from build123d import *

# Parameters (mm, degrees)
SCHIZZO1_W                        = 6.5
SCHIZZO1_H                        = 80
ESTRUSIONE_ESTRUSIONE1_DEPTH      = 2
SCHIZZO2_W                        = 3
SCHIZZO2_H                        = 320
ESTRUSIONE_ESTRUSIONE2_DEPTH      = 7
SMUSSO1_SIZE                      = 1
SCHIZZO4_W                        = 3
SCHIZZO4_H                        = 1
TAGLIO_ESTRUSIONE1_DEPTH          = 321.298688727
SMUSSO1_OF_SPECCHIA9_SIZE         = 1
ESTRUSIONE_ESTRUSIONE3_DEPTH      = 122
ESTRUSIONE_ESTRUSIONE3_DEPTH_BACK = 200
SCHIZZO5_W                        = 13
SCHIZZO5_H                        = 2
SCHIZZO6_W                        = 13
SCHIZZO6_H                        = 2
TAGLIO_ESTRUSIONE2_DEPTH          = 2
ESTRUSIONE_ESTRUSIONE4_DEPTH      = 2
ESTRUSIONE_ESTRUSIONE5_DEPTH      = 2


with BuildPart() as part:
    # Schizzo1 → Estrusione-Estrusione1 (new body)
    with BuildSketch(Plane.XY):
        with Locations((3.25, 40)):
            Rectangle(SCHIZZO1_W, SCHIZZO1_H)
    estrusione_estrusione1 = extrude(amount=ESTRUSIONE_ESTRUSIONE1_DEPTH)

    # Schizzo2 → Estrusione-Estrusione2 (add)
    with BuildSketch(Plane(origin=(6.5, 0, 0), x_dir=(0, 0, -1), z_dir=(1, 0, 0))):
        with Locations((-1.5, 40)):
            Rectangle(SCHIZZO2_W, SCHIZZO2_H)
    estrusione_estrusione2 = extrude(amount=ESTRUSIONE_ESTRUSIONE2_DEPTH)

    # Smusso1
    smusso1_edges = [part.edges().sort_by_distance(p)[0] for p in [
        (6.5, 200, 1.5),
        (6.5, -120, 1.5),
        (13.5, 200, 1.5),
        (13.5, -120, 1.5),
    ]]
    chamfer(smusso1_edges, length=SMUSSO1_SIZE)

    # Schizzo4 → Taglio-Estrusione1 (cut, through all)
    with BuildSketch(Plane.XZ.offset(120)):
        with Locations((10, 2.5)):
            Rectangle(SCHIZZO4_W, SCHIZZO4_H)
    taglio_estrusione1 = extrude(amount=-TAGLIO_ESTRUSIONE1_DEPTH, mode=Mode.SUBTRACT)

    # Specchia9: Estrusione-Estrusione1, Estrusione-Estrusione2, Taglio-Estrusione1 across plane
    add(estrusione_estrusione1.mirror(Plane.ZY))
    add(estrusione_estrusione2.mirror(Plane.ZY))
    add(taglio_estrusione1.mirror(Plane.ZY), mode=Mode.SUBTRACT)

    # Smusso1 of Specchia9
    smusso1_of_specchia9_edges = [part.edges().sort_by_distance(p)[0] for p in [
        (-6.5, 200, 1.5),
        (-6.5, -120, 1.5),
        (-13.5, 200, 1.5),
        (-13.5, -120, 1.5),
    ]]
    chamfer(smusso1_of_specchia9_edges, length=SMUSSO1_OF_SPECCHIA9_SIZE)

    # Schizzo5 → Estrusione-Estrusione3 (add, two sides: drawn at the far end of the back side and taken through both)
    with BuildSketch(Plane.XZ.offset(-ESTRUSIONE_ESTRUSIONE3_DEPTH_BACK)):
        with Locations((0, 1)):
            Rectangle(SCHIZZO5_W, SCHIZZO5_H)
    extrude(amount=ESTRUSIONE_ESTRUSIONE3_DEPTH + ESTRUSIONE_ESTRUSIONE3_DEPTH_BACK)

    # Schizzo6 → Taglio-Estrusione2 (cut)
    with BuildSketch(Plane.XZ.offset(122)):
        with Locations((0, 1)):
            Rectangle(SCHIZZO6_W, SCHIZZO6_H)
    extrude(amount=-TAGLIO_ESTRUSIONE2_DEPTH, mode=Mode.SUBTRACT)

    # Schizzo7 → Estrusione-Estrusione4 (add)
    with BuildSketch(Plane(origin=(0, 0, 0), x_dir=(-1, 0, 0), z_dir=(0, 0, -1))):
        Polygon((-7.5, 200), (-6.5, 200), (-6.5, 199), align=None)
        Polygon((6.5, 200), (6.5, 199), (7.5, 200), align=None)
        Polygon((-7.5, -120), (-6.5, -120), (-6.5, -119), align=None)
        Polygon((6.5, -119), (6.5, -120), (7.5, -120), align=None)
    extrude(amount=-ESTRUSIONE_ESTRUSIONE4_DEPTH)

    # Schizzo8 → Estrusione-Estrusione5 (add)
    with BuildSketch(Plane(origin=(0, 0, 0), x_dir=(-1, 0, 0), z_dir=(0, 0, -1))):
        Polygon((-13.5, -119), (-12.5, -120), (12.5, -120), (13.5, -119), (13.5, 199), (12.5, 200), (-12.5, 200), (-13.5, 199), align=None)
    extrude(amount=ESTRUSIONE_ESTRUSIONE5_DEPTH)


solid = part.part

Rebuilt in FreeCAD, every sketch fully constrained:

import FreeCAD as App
import Part
import Sketcher


def edges_at(feature, points):
    """Names of the edges that pass closest to the given points."""
    edges = feature.Shape.Edges
    near = lambda p: min(range(len(edges)), key=lambda i: edges[i].distToShape(Part.Vertex(*p))[0])
    return sorted({f"Edge{near(p) + 1}" for p in points})


def add_polygon(sketch, points):
    """Adds a closed chain of lines whose ends are joined by coincident constraints."""
    first, n = sketch.GeometryCount, len(points)
    for a, b in zip(points, points[1:] + points[:1]):
        sketch.addGeometry(Part.LineSegment(App.Vector(*a, 0), App.Vector(*b, 0)), False)
    for i in range(n):
        sketch.addConstraint(Sketcher.Constraint("Coincident", first + i, 2, first + (i + 1) % n, 1))

doc = App.newDocument("Part")
params = doc.addObject("Spreadsheet::Sheet", "Params")
for row, (alias, value) in enumerate([
    ("sketch1_height", "80 mm"),
    ("sketch1_width", "6.5 mm"),
    ("pad1_length", "2 mm"),
    ("sketch2_width", "320 mm"),
    ("sketch2_height", "3 mm"),
    ("pad2_length", "7 mm"),
    ("chamfer_size", "1 mm"),
    ("sketch3_width", "3 mm"),
    ("sketch3_height", "1 mm"),
    ("chamfer2_size", "1 mm"),
    ("sketch4_width", "13 mm"),
    ("sketch4_height", "2 mm"),
    ("pad3_length", "122 mm"),
    ("pad3_length2", "200 mm"),
    ("sketch5_width", "13 mm"),
    ("sketch5_height", "2 mm"),
    ("pocket2_length", "2 mm"),
    ("sketch6_width", "1 mm"),
    ("pad4_length", "2 mm"),
    ("sketch7_width", "25 mm"),
    ("sketch7_height", "318 mm"),
    ("pad5_length", "2 mm"),
], start=1):
    params.set(f"A{row}", alias)
    params.set(f"B{row}", "=" + value)
    params.setAlias(f"B{row}", alias)

body = doc.addObject("PartDesign::Body", "Body")

# Sketch on XY plane
sketch1 = doc.addObject("Sketcher::SketchObject", "Sketch")
body.addObject(sketch1)
sketch1.AttachmentSupport = (doc.XY_Plane, [""])
sketch1.MapMode = "FlatFace"
add_polygon(sketch1, [(0, 80), (0, 0), (6, 0), (6, 80)])  # lines 0-3
sketch1.addConstraint([
    Sketcher.Constraint("Vertical", 0),
    Sketcher.Constraint("Horizontal", 1),
    Sketcher.Constraint("Vertical", 2),
    Sketcher.Constraint("Horizontal", 3),
    Sketcher.Constraint("Coincident", 0, 2, -1, 1),
    Sketcher.Constraint("DistanceY", 0, 2, 0, 1, 80.0),
    Sketcher.Constraint("DistanceX", 1, 1, 1, 2, 6.5),
])
sketch1.setExpression("Constraints[9]", "Params.sketch1_height")
sketch1.setExpression("Constraints[10]", "Params.sketch1_width")
pad1 = doc.addObject("PartDesign::Pad", "Pad")
body.addObject(pad1)
pad1.Profile = sketch1
pad1.setExpression("Length", "Params.pad1_length")

# Sketch on YZ plane
sketch2 = doc.addObject("Sketcher::SketchObject", "Sketch001")
body.addObject(sketch2)
sketch2.AttachmentSupport = (doc.YZ_Plane, [""])
sketch2.MapMode = "FlatFace"
sketch2.AttachmentOffset = App.Placement(App.Vector(0, 0, 6.5), App.Rotation())
add_polygon(sketch2, [(200, 3), (-120, 3), (-120, 0), (200, 0)])  # lines 0-3
sketch2.addConstraint([
    Sketcher.Constraint("Horizontal", 0),
    Sketcher.Constraint("Vertical", 1),
    Sketcher.Constraint("Horizontal", 2),
    Sketcher.Constraint("Vertical", 3),
    Sketcher.Constraint("PointOnObject", 1, 2, -1),
    Sketcher.Constraint("DistanceX", 0, 2, 0, 1, 320.0),
    Sketcher.Constraint("DistanceY", 1, 2, 1, 1, 3.0),
    Sketcher.Constraint("DistanceX", 0, 2, -1, 1, 120.0),
])
sketch2.setExpression("Constraints[9]", "Params.sketch2_width")
sketch2.setExpression("Constraints[10]", "Params.sketch2_height")
pad2 = doc.addObject("PartDesign::Pad", "Pad001")
body.addObject(pad2)
pad2.Profile = sketch2
pad2.setExpression("Length", "Params.pad2_length")
doc.recompute()

chamfer = doc.addObject("PartDesign::Chamfer", "Chamfer")
body.addObject(chamfer)
chamfer.Base = (pad2, edges_at(pad2, [
    (6.5, 200, 1.5),
    (6.5, -120, 1.5),
    (13.5, 200, 1.5),
    (13.5, -120, 1.5),
]))
chamfer.setExpression("Size", "Params.chamfer_size")

# Sketch on XZ plane
sketch3 = doc.addObject("Sketcher::SketchObject", "Sketch002")
body.addObject(sketch3)
sketch3.AttachmentSupport = (doc.XZ_Plane, [""])
sketch3.MapMode = "FlatFace"
sketch3.AttachmentOffset = App.Placement(App.Vector(0, 0, 120), App.Rotation())
add_polygon(sketch3, [(8.5, 3), (8.5, 2), (11.5, 2), (11.5, 3)])  # lines 0-3
sketch3.addConstraint([
    Sketcher.Constraint("Vertical", 0),
    Sketcher.Constraint("Horizontal", 1),
    Sketcher.Constraint("Vertical", 2),
    Sketcher.Constraint("Horizontal", 3),
    Sketcher.Constraint("DistanceX", 1, 1, 1, 2, 3.0),
    Sketcher.Constraint("DistanceY", 0, 2, 0, 1, 1.0),
    Sketcher.Constraint("DistanceY", -1, 1, 0, 2, 2.0),
    Sketcher.Constraint("DistanceX", -1, 1, 0, 2, 8.5),
])
sketch3.setExpression("Constraints[8]", "Params.sketch3_width")
sketch3.setExpression("Constraints[9]", "Params.sketch3_height")
pocket1 = doc.addObject("PartDesign::Pocket", "Pocket")
body.addObject(pocket1)
pocket1.Profile = sketch3
pocket1.Type = "ThroughAll"
doc.recompute()

mirrored = doc.addObject("PartDesign::Mirrored", "Mirrored")
body.addObject(mirrored)
mirrored.Originals = [pad1, pad2, pocket1]
mirrored.MirrorPlane = (doc.YZ_Plane, [""])
body.Tip = mirrored
doc.recompute()

chamfer2 = doc.addObject("PartDesign::Chamfer", "Chamfer001")
body.addObject(chamfer2)
chamfer2.Base = (mirrored, edges_at(mirrored, [
    (-6.5, 200, 1.5),
    (-6.5, -120, 1.5),
    (-13.5, 200, 1.5),
    (-13.5, -120, 1.5),
]))
chamfer2.setExpression("Size", "Params.chamfer2_size")

# Sketch on XZ plane
sketch4 = doc.addObject("Sketcher::SketchObject", "Sketch003")
body.addObject(sketch4)
sketch4.AttachmentSupport = (doc.XZ_Plane, [""])
sketch4.MapMode = "FlatFace"
add_polygon(sketch4, [(-6.5, 2), (-6.5, 0), (6.5, 0), (6.5, 2)])  # lines 0-3
sketch4.addConstraint([
    Sketcher.Constraint("Vertical", 0),
    Sketcher.Constraint("Horizontal", 1),
    Sketcher.Constraint("Vertical", 2),
    Sketcher.Constraint("Horizontal", 3),
    Sketcher.Constraint("Symmetric", 0, 2, 1, 2, -1, 1),
    Sketcher.Constraint("DistanceX", 1, 1, 1, 2, 13.0),
    Sketcher.Constraint("DistanceY", 0, 2, 0, 1, 2.0),
])
sketch4.setExpression("Constraints[9]", "Params.sketch4_width")
sketch4.setExpression("Constraints[10]", "Params.sketch4_height")
pad3 = doc.addObject("PartDesign::Pad", "Pad002")
body.addObject(pad3)
pad3.Profile = sketch4
pad3.Type = "TwoLengths"
pad3.setExpression("Length", "Params.pad3_length")
pad3.setExpression("Length2", "Params.pad3_length2")

# Sketch on XZ plane
sketch5 = doc.addObject("Sketcher::SketchObject", "Sketch004")
body.addObject(sketch5)
sketch5.AttachmentSupport = (doc.XZ_Plane, [""])
sketch5.MapMode = "FlatFace"
sketch5.AttachmentOffset = App.Placement(App.Vector(0, 0, 122), App.Rotation())
add_polygon(sketch5, [(-6.5, 2), (-6.5, 0), (6.5, 0), (6.5, 2)])  # lines 0-3
sketch5.addConstraint([
    Sketcher.Constraint("Vertical", 0),
    Sketcher.Constraint("Horizontal", 1),
    Sketcher.Constraint("Vertical", 2),
    Sketcher.Constraint("Horizontal", 3),
    Sketcher.Constraint("Symmetric", 0, 2, 1, 2, -1, 1),
    Sketcher.Constraint("DistanceX", 1, 1, 1, 2, 13.0),
    Sketcher.Constraint("DistanceY", 0, 2, 0, 1, 2.0),
])
sketch5.setExpression("Constraints[9]", "Params.sketch5_width")
sketch5.setExpression("Constraints[10]", "Params.sketch5_height")
pocket2 = doc.addObject("PartDesign::Pocket", "Pocket001")
body.addObject(pocket2)
pocket2.Profile = sketch5
pocket2.setExpression("Length", "Params.pocket2_length")

# Sketch on XY plane
sketch6 = doc.addObject("Sketcher::SketchObject", "Sketch005")
body.addObject(sketch6)
sketch6.AttachmentSupport = (doc.XY_Plane, [""])
sketch6.MapMode = "FlatFace"
add_polygon(sketch6, [(6.5, 200), (7.5, 200), (6.5, 199)])  # lines 0-2
add_polygon(sketch6, [(-6.5, 200), (-6.5, 199), (-7.5, 200)])  # lines 3-5
add_polygon(sketch6, [(7.5, -120), (6.5, -120), (6.5, -119)])  # lines 6-8
add_polygon(sketch6, [(-6.5, -119), (-6.5, -120), (-7.5, -120)])  # lines 9-11
sketch6.addConstraint([
    Sketcher.Constraint("Horizontal", 0),
    Sketcher.Constraint("Vertical", 2),
    Sketcher.Constraint("Vertical", 3),
    Sketcher.Constraint("Horizontal", 5),
    Sketcher.Constraint("Horizontal", 6),
    Sketcher.Constraint("Vertical", 7),
    Sketcher.Constraint("Vertical", 9),
    Sketcher.Constraint("Horizontal", 10),
    Sketcher.Constraint("Symmetric", 1, 2, 3, 2, -2),
    Sketcher.Constraint("Symmetric", 0, 2, 4, 2, -2),
    Sketcher.Constraint("Symmetric", 6, 2, 9, 2, -2),
    Sketcher.Constraint("Perpendicular", 1, 4),
    Sketcher.Constraint("Parallel", 4, 8),
    Sketcher.Constraint("Perpendicular", 8, 11),
    Sketcher.Constraint("Horizontal", 7, 2, 11, 2),
    Sketcher.Constraint("Vertical", 2, 2, 6, 2),
    Sketcher.Constraint("Vertical", 0, 2, 8, 2),
    Sketcher.Constraint("DistanceX", 0, 1, 0, 2, 1.0),
    Sketcher.Constraint("DistanceY", -1, 1, 0, 2, 200.0),
    Sketcher.Constraint("DistanceY", 6, 2, -1, 1, 120.0),
    Sketcher.Constraint("DistanceX", 3, 2, 1, 2, 13.0),
])
sketch6.setExpression("Constraints[29]", "Params.sketch6_width")
pad4 = doc.addObject("PartDesign::Pad", "Pad003")
body.addObject(pad4)
pad4.Profile = sketch6
pad4.setExpression("Length", "Params.pad4_length")

# Sketch on XY plane
sketch7 = doc.addObject("Sketcher::SketchObject", "Sketch006")
body.addObject(sketch7)
sketch7.AttachmentSupport = (doc.XY_Plane, [""])
sketch7.MapMode = "FlatFace"
add_polygon(sketch7, [(13.5, -119), (12.5, -120), (-12.5, -120), (-13.5, -119), (-13.5, 199), (-12.5, 200), (12.5, 200), (13.5, 199)])  # lines 0-7
sketch7.addConstraint([
    Sketcher.Constraint("Horizontal", 1),
    Sketcher.Constraint("Vertical", 3),
    Sketcher.Constraint("Horizontal", 5),
    Sketcher.Constraint("Vertical", 7),
    Sketcher.Constraint("Symmetric", 3, 2, 6, 2, -2),
    Sketcher.Constraint("Perpendicular", 0, 2),
    Sketcher.Constraint("Perpendicular", 2, 4),
    Sketcher.Constraint("Perpendicular", 4, 6),
    Sketcher.Constraint("Horizontal", 2, 2, 7, 2),
    Sketcher.Constraint("Vertical", 1, 2, 4, 2),
    Sketcher.Constraint("Vertical", 0, 2, 5, 2),
    Sketcher.Constraint("DistanceX", 1, 2, 1, 1, 25.0),
    Sketcher.Constraint("DistanceY", 3, 1, 3, 2, 318.0),
    Sketcher.Constraint("DistanceY", 0, 2, -1, 1, 120.0),
    Sketcher.Constraint("DistanceY", 2, 2, -1, 1, 119.0),
])
sketch7.setExpression("Constraints[19]", "Params.sketch7_width")
sketch7.setExpression("Constraints[20]", "Params.sketch7_height")
pad5 = doc.addObject("PartDesign::Pad", "Pad004")
body.addObject(pad5)
pad5.Profile = sketch7
pad5.setExpression("Length", "Params.pad5_length")
pad5.Reversed = True

doc.recompute()
